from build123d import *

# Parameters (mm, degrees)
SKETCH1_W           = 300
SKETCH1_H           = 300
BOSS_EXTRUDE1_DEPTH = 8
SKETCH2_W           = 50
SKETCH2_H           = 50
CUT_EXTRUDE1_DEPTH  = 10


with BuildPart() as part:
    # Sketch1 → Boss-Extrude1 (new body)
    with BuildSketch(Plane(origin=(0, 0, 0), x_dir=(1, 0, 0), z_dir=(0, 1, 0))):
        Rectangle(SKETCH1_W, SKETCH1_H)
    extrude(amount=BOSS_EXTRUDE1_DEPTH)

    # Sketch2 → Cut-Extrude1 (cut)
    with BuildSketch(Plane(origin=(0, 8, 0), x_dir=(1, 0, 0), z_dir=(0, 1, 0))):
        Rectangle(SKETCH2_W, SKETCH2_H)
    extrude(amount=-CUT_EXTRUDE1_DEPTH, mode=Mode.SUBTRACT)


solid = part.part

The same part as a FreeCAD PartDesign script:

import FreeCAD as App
import Part
import Sketcher

doc = App.newDocument("Part")
body = doc.addObject("PartDesign::Body", "Body")

# Sketch on XZ plane
sketch1 = body.newObject("Sketcher::SketchObject", "Sketch")
sketch1.AttachmentSupport = (doc.getObject("XZ_Plane"), [""])
sketch1.MapMode = "FlatFace"
sketch1.addGeometry([
    Part.LineSegment(App.Vector(-150, -150, 0), App.Vector(-150, 150, 0)),
    Part.LineSegment(App.Vector(-150, 150, 0), App.Vector(150, 150, 0)),
    Part.LineSegment(App.Vector(150, 150, 0), App.Vector(150, -150, 0)),
    Part.LineSegment(App.Vector(150, -150, 0), App.Vector(-150, -150, 0)),
], False)
sketch1.addConstraint([
    Sketcher.Constraint("Coincident", 0, 2, 1, 1),
    Sketcher.Constraint("Coincident", 1, 2, 2, 1),
    Sketcher.Constraint("Coincident", 2, 2, 3, 1),
    Sketcher.Constraint("Coincident", 3, 2, 0, 1),
    Sketcher.Constraint("Vertical", 0),
    Sketcher.Constraint("Horizontal", 1),
    Sketcher.Constraint("Vertical", 2),
    Sketcher.Constraint("Horizontal", 3),
    Sketcher.Constraint("Symmetric", 0, 2, 2, 2, -1, 1),
    Sketcher.Constraint("Equal", 3, 0),
    Sketcher.Constraint("DistanceX", 1, 1, 1, 2, 300.0),
])
pad1 = body.newObject("PartDesign::Pad", "Pad")
pad1.Profile = sketch1
pad1.Length = 8
pad1.Reversed = True

# Sketch on XZ plane
sketch2 = body.newObject("Sketcher::SketchObject", "Sketch001")
sketch2.AttachmentSupport = (doc.getObject("XZ_Plane"), [""])
sketch2.MapMode = "FlatFace"
sketch2.AttachmentOffset = App.Placement(App.Vector(0, 0, -8), App.Rotation())
sketch2.addGeometry([
    Part.LineSegment(App.Vector(-25, -25, 0), App.Vector(-25, 25, 0)),
    Part.LineSegment(App.Vector(-25, 25, 0), App.Vector(25, 25, 0)),
    Part.LineSegment(App.Vector(25, 25, 0), App.Vector(25, -25, 0)),
    Part.LineSegment(App.Vector(25, -25, 0), App.Vector(-25, -25, 0)),
], False)
sketch2.addConstraint([
    Sketcher.Constraint("Coincident", 0, 2, 1, 1),
    Sketcher.Constraint("Coincident", 1, 2, 2, 1),
    Sketcher.Constraint("Coincident", 2, 2, 3, 1),
    Sketcher.Constraint("Coincident", 3, 2, 0, 1),
    Sketcher.Constraint("Vertical", 0),
    Sketcher.Constraint("Horizontal", 1),
    Sketcher.Constraint("Vertical", 2),
    Sketcher.Constraint("Horizontal", 3),
    Sketcher.Constraint("Symmetric", 0, 2, 2, 2, -1, 1),
    Sketcher.Constraint("Equal", 3, 0),
    Sketcher.Constraint("DistanceX", 1, 1, 1, 2, 50.0),
])
pocket1 = body.newObject("PartDesign::Pocket", "Pocket")
pocket1.Profile = sketch2
pocket1.Length = 10
pocket1.Reversed = True

doc.recompute()
